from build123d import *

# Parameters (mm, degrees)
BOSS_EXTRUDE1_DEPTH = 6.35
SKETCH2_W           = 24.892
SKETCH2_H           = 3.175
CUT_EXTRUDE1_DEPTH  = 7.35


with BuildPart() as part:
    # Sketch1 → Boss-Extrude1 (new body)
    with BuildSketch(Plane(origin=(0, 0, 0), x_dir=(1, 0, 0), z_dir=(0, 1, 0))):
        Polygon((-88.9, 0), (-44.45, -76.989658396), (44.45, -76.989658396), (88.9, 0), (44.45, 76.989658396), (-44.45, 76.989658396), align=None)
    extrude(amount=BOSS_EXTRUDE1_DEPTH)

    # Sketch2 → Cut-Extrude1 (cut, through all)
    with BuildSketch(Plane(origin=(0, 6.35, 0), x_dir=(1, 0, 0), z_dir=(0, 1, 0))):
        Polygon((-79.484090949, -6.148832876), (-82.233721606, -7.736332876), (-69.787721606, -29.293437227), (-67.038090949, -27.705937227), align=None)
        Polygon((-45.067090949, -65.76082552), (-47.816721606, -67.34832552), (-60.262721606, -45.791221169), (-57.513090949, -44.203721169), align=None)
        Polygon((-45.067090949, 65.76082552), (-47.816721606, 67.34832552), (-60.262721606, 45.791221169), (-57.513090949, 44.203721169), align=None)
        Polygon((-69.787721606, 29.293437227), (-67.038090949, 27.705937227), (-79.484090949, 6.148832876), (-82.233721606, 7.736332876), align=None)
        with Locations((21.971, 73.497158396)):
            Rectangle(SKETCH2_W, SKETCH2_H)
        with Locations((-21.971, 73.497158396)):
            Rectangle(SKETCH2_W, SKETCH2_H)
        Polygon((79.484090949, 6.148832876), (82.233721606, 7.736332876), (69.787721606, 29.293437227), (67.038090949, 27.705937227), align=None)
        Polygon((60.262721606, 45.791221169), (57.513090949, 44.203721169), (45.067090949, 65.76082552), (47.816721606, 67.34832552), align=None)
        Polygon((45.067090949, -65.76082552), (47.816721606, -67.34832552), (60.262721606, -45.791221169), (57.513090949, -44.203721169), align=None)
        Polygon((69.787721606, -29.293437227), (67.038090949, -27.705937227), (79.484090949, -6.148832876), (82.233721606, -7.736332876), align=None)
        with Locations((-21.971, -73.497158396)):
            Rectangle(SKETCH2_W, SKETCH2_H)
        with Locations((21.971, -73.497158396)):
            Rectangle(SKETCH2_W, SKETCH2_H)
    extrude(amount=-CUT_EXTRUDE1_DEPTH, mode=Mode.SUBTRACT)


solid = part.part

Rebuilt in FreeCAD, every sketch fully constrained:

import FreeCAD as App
import Part
import Sketcher

V = App.Vector
Q = App.Units.Quantity


def add_polygon(sketch, points):
    """Adds a closed chain of lines whose ends are joined by coincident constraints."""
    first, n = sketch.GeometryCount, len(points)
    for a, b in zip(points, points[1:] + points[:1]):
        sketch.addGeometry(Part.LineSegment(App.Vector(*a, 0), App.Vector(*b, 0)), False)
    for i in range(n):
        sketch.addConstraint(Sketcher.Constraint("Coincident", first + i, 2, first + (i + 1) % n, 1))

doc = App.newDocument("Part")
body = doc.addObject("PartDesign::Body", "Body")

# Sketch on XZ plane
sketch1 = doc.addObject("Sketcher::SketchObject", "Sketch")
body.addObject(sketch1)
sketch1.AttachmentSupport = (doc.XZ_Plane, [""])
sketch1.MapMode = "FlatFace"
add_polygon(sketch1, [(-89, 0), (-44, 77), (44, 77), (89, 0), (44, -77), (-44, -77)])  # lines 0-5
sketch1.addConstraint(Sketcher.Constraint("Horizontal", 1))
sketch1.addConstraint(Sketcher.Constraint("Horizontal", 4))
sketch1.addConstraint(Sketcher.Constraint("Symmetric", 0, 2, 3, 2, -1, 1))
sketch1.addConstraint(Sketcher.Constraint("Symmetric", 2, 2, 5, 2, -1, 1))
sketch1.addConstraint(Sketcher.Constraint("PointOnObject", 2, 2, -1))
sketch1.addConstraint(Sketcher.Constraint("Parallel", 2, 5))
sketch1.addConstraint(Sketcher.Constraint("Vertical", 1, 2, 3, 2))
sketch1.addConstraint(Sketcher.Constraint("DistanceX", 1, 1, 1, 2, Q("3.5 in")))
sketch1.addConstraint(Sketcher.Constraint("Angle", 0, Q("60 deg")))
sketch1.addConstraint(Sketcher.Constraint("DistanceX", 5, 2, 2, 2, Q("7 in")))
pad1 = doc.addObject("PartDesign::Pad", "Pad")
body.addObject(pad1)
pad1.Profile = sketch1
pad1.Length = Q("0.25 in")
pad1.Reversed = True

# Sketch on XZ plane
sketch2 = doc.addObject("Sketcher::SketchObject", "Sketch001")
body.addObject(sketch2)
sketch2.AttachmentSupport = (doc.XZ_Plane, [""])
sketch2.MapMode = "FlatFace"
sketch2.AttachmentOffset = App.Placement(V(0, 0, -0.25 * 25.4), App.Rotation())
add_polygon(sketch2, [(-79.5, 6.1), (-82.2, 7.7), (-69.8, 29.3), (-67, 27.7)])  # lines 0-3
add_polygon(sketch2, [(-47.8, 67.3), (-45.1, 65.8), (-57.5, 44.2), (-60.3, 45.8)])  # lines 4-7
add_polygon(sketch2, [(-45.1, -65.8), (-47.8, -67.3), (-60.3, -45.8), (-57.5, -44.2)])  # lines 8-11
add_polygon(sketch2, [(-67, -27.7), (-69.8, -29.3), (-82.2, -7.7), (-79.5, -6.1)])  # lines 12-15
add_polygon(sketch2, [(9.5, -75.1), (9.5, -71.9), (34.4, -71.9), (34.4, -75.1)])  # lines 16-19
add_polygon(sketch2, [(-34.4, -75.1), (-34.4, -71.9), (-9.5, -71.9), (-9.5, -75.1)])  # lines 20-23
add_polygon(sketch2, [(79.5, -6.1), (82.2, -7.7), (69.8, -29.3), (67, -27.7)])  # lines 24-27
add_polygon(sketch2, [(57.5, -44.2), (60.3, -45.8), (47.8, -67.3), (45.1, -65.8)])  # lines 28-31
add_polygon(sketch2, [(45.1, 65.8), (47.8, 67.3), (60.3, 45.8), (57.5, 44.2)])  # lines 32-35
add_polygon(sketch2, [(67, 27.7), (69.8, 29.3), (82.2, 7.7), (79.5, 6.1)])  # lines 36-39
add_polygon(sketch2, [(-34.4, 71.9), (-34.4, 75.1), (-9.5, 75.1), (-9.5, 71.9)])  # lines 40-43
add_polygon(sketch2, [(9.5, 71.9), (9.5, 75.1), (34.4, 75.1), (34.4, 71.9)])  # lines 44-47
sketch2.addConstraint(Sketcher.Constraint("Vertical", 16))
sketch2.addConstraint(Sketcher.Constraint("Horizontal", 17))
sketch2.addConstraint(Sketcher.Constraint("Vertical", 18))
sketch2.addConstraint(Sketcher.Constraint("Horizontal", 19))
sketch2.addConstraint(Sketcher.Constraint("Vertical", 20))
sketch2.addConstraint(Sketcher.Constraint("Horizontal", 21))
sketch2.addConstraint(Sketcher.Constraint("Vertical", 22))
sketch2.addConstraint(Sketcher.Constraint("Horizontal", 23))
sketch2.addConstraint(Sketcher.Constraint("Vertical", 40))
sketch2.addConstraint(Sketcher.Constraint("Horizontal", 41))
sketch2.addConstraint(Sketcher.Constraint("Vertical", 42))
sketch2.addConstraint(Sketcher.Constraint("Horizontal", 43))
sketch2.addConstraint(Sketcher.Constraint("Vertical", 44))
sketch2.addConstraint(Sketcher.Constraint("Horizontal", 45))
sketch2.addConstraint(Sketcher.Constraint("Vertical", 46))
sketch2.addConstraint(Sketcher.Constraint("Horizontal", 47))
sketch2.addConstraint(Sketcher.Constraint("Symmetric", 0, 2, 24, 2, -1, 1))
sketch2.addConstraint(Sketcher.Constraint("Symmetric", 1, 2, 25, 2, -1, 1))
sketch2.addConstraint(Sketcher.Constraint("Symmetric", 2, 2, 26, 2, -1, 1))
sketch2.addConstraint(Sketcher.Constraint("Symmetric", 3, 2, 27, 2, -1, 1))
sketch2.addConstraint(Sketcher.Constraint("Symmetric", 6, 2, 28, 2, -1, 1))
sketch2.addConstraint(Sketcher.Constraint("Symmetric", 7, 2, 29, 2, -1, 1))
sketch2.addConstraint(Sketcher.Constraint("Symmetric", 4, 2, 30, 2, -1, 1))
sketch2.addConstraint(Sketcher.Constraint("Symmetric", 5, 2, 31, 2, -1, 1))
sketch2.addConstraint(Sketcher.Constraint("Symmetric", 8, 2, 32, 2, -1, 1))
sketch2.addConstraint(Sketcher.Constraint("Symmetric", 9, 2, 33, 2, -1, 1))
sketch2.addConstraint(Sketcher.Constraint("Symmetric", 10, 2, 34, 2, -1, 1))
sketch2.addConstraint(Sketcher.Constraint("Symmetric", 11, 2, 35, 2, -1, 1))
sketch2.addConstraint(Sketcher.Constraint("Symmetric", 12, 2, 36, 2, -1, 1))
sketch2.addConstraint(Sketcher.Constraint("Symmetric", 13, 2, 37, 2, -1, 1))
sketch2.addConstraint(Sketcher.Constraint("Symmetric", 14, 2, 38, 2, -1, 1))
sketch2.addConstraint(Sketcher.Constraint("Symmetric", 15, 2, 39, 2, -1, 1))
sketch2.addConstraint(Sketcher.Constraint("Symmetric", 18, 2, 40, 2, -1, 1))
sketch2.addConstraint(Sketcher.Constraint("Symmetric", 16, 2, 42, 2, -1, 1))
sketch2.addConstraint(Sketcher.Constraint("Symmetric", 22, 2, 44, 2, -1, 1))
sketch2.addConstraint(Sketcher.Constraint("Symmetric", 20, 2, 46, 2, -1, 1))
sketch2.addConstraint(Sketcher.Constraint("Symmetric", 17, 2, 20, 2, -2))
sketch2.addConstraint(Sketcher.Constraint("Symmetric", 19, 2, 22, 2, -2))
sketch2.addConstraint(Sketcher.Constraint("Symmetric", 13, 2, 24, 2, -2))
sketch2.addConstraint(Sketcher.Constraint("Symmetric", 12, 2, 25, 2, -2))
sketch2.addConstraint(Sketcher.Constraint("Symmetric", 15, 2, 26, 2, -2))
sketch2.addConstraint(Sketcher.Constraint("Symmetric", 14, 2, 27, 2, -2))
sketch2.addConstraint(Sketcher.Constraint("Symmetric", 9, 2, 28, 2, -2))
sketch2.addConstraint(Sketcher.Constraint("Symmetric", 8, 2, 29, 2, -2))
sketch2.addConstraint(Sketcher.Constraint("Symmetric", 11, 2, 30, 2, -2))
sketch2.addConstraint(Sketcher.Constraint("Symmetric", 10, 2, 31, 2, -2))
sketch2.addConstraint(Sketcher.Constraint("Perpendicular", 0, 1))
sketch2.addConstraint(Sketcher.Constraint("Perpendicular", 1, 2))
sketch2.addConstraint(Sketcher.Constraint("Perpendicular", 2, 3))
sketch2.addConstraint(Sketcher.Constraint("Perpendicular", 3, 4))
sketch2.addConstraint(Sketcher.Constraint("Perpendicular", 4, 5))
sketch2.addConstraint(Sketcher.Constraint("Perpendicular", 5, 6))
sketch2.addConstraint(Sketcher.Constraint("Perpendicular", 6, 7))
sketch2.addConstraint(Sketcher.Constraint("Equal", 2, 4))
sketch2.addConstraint(Sketcher.Constraint("Equal", 3, 5))
sketch2.addConstraint(Sketcher.Constraint("Angle", 0, Q("150 deg")))
sketch2.addConstraint(Sketcher.Constraint("DistanceX", 17, 1, 17, 2, Q("0.98 in")))
sketch2.addConstraint(Sketcher.Constraint("Distance", 1, Q("0.98 in")))
sketch2.addConstraint(Sketcher.Constraint("DistanceY", 16, 1, 16, 2, Q("0.125 in")))
sketch2.addConstraint(Sketcher.Constraint("DistanceX", 20, 2, 16, 2, Q("1.73 in")))
sketch2.addConstraint(Sketcher.Constraint("Distance", 0, Q("0.125 in")))
sketch2.addConstraint(Sketcher.Constraint("DistanceX", 2, 2, 4, 2, Q("0.865 in")))
sketch2.addConstraint(Sketcher.Constraint("DistanceX", 0, 2, -1, 1, 82.233722))
sketch2.addConstraint(Sketcher.Constraint("DistanceY", -1, 1, 5, 2, 44.203721))
sketch2.addConstraint(Sketcher.Constraint("DistanceY", 16, 2, -1, 1, 71.909658))
sketch2.addConstraint(Sketcher.Constraint("DistanceY", 2, 2, 4, 2, 38.054888))
pocket1 = doc.addObject("PartDesign::Pocket", "Pocket")
body.addObject(pocket1)
pocket1.Profile = sketch2
pocket1.Type = "ThroughAll"
pocket1.Reversed = True

doc.recompute()
